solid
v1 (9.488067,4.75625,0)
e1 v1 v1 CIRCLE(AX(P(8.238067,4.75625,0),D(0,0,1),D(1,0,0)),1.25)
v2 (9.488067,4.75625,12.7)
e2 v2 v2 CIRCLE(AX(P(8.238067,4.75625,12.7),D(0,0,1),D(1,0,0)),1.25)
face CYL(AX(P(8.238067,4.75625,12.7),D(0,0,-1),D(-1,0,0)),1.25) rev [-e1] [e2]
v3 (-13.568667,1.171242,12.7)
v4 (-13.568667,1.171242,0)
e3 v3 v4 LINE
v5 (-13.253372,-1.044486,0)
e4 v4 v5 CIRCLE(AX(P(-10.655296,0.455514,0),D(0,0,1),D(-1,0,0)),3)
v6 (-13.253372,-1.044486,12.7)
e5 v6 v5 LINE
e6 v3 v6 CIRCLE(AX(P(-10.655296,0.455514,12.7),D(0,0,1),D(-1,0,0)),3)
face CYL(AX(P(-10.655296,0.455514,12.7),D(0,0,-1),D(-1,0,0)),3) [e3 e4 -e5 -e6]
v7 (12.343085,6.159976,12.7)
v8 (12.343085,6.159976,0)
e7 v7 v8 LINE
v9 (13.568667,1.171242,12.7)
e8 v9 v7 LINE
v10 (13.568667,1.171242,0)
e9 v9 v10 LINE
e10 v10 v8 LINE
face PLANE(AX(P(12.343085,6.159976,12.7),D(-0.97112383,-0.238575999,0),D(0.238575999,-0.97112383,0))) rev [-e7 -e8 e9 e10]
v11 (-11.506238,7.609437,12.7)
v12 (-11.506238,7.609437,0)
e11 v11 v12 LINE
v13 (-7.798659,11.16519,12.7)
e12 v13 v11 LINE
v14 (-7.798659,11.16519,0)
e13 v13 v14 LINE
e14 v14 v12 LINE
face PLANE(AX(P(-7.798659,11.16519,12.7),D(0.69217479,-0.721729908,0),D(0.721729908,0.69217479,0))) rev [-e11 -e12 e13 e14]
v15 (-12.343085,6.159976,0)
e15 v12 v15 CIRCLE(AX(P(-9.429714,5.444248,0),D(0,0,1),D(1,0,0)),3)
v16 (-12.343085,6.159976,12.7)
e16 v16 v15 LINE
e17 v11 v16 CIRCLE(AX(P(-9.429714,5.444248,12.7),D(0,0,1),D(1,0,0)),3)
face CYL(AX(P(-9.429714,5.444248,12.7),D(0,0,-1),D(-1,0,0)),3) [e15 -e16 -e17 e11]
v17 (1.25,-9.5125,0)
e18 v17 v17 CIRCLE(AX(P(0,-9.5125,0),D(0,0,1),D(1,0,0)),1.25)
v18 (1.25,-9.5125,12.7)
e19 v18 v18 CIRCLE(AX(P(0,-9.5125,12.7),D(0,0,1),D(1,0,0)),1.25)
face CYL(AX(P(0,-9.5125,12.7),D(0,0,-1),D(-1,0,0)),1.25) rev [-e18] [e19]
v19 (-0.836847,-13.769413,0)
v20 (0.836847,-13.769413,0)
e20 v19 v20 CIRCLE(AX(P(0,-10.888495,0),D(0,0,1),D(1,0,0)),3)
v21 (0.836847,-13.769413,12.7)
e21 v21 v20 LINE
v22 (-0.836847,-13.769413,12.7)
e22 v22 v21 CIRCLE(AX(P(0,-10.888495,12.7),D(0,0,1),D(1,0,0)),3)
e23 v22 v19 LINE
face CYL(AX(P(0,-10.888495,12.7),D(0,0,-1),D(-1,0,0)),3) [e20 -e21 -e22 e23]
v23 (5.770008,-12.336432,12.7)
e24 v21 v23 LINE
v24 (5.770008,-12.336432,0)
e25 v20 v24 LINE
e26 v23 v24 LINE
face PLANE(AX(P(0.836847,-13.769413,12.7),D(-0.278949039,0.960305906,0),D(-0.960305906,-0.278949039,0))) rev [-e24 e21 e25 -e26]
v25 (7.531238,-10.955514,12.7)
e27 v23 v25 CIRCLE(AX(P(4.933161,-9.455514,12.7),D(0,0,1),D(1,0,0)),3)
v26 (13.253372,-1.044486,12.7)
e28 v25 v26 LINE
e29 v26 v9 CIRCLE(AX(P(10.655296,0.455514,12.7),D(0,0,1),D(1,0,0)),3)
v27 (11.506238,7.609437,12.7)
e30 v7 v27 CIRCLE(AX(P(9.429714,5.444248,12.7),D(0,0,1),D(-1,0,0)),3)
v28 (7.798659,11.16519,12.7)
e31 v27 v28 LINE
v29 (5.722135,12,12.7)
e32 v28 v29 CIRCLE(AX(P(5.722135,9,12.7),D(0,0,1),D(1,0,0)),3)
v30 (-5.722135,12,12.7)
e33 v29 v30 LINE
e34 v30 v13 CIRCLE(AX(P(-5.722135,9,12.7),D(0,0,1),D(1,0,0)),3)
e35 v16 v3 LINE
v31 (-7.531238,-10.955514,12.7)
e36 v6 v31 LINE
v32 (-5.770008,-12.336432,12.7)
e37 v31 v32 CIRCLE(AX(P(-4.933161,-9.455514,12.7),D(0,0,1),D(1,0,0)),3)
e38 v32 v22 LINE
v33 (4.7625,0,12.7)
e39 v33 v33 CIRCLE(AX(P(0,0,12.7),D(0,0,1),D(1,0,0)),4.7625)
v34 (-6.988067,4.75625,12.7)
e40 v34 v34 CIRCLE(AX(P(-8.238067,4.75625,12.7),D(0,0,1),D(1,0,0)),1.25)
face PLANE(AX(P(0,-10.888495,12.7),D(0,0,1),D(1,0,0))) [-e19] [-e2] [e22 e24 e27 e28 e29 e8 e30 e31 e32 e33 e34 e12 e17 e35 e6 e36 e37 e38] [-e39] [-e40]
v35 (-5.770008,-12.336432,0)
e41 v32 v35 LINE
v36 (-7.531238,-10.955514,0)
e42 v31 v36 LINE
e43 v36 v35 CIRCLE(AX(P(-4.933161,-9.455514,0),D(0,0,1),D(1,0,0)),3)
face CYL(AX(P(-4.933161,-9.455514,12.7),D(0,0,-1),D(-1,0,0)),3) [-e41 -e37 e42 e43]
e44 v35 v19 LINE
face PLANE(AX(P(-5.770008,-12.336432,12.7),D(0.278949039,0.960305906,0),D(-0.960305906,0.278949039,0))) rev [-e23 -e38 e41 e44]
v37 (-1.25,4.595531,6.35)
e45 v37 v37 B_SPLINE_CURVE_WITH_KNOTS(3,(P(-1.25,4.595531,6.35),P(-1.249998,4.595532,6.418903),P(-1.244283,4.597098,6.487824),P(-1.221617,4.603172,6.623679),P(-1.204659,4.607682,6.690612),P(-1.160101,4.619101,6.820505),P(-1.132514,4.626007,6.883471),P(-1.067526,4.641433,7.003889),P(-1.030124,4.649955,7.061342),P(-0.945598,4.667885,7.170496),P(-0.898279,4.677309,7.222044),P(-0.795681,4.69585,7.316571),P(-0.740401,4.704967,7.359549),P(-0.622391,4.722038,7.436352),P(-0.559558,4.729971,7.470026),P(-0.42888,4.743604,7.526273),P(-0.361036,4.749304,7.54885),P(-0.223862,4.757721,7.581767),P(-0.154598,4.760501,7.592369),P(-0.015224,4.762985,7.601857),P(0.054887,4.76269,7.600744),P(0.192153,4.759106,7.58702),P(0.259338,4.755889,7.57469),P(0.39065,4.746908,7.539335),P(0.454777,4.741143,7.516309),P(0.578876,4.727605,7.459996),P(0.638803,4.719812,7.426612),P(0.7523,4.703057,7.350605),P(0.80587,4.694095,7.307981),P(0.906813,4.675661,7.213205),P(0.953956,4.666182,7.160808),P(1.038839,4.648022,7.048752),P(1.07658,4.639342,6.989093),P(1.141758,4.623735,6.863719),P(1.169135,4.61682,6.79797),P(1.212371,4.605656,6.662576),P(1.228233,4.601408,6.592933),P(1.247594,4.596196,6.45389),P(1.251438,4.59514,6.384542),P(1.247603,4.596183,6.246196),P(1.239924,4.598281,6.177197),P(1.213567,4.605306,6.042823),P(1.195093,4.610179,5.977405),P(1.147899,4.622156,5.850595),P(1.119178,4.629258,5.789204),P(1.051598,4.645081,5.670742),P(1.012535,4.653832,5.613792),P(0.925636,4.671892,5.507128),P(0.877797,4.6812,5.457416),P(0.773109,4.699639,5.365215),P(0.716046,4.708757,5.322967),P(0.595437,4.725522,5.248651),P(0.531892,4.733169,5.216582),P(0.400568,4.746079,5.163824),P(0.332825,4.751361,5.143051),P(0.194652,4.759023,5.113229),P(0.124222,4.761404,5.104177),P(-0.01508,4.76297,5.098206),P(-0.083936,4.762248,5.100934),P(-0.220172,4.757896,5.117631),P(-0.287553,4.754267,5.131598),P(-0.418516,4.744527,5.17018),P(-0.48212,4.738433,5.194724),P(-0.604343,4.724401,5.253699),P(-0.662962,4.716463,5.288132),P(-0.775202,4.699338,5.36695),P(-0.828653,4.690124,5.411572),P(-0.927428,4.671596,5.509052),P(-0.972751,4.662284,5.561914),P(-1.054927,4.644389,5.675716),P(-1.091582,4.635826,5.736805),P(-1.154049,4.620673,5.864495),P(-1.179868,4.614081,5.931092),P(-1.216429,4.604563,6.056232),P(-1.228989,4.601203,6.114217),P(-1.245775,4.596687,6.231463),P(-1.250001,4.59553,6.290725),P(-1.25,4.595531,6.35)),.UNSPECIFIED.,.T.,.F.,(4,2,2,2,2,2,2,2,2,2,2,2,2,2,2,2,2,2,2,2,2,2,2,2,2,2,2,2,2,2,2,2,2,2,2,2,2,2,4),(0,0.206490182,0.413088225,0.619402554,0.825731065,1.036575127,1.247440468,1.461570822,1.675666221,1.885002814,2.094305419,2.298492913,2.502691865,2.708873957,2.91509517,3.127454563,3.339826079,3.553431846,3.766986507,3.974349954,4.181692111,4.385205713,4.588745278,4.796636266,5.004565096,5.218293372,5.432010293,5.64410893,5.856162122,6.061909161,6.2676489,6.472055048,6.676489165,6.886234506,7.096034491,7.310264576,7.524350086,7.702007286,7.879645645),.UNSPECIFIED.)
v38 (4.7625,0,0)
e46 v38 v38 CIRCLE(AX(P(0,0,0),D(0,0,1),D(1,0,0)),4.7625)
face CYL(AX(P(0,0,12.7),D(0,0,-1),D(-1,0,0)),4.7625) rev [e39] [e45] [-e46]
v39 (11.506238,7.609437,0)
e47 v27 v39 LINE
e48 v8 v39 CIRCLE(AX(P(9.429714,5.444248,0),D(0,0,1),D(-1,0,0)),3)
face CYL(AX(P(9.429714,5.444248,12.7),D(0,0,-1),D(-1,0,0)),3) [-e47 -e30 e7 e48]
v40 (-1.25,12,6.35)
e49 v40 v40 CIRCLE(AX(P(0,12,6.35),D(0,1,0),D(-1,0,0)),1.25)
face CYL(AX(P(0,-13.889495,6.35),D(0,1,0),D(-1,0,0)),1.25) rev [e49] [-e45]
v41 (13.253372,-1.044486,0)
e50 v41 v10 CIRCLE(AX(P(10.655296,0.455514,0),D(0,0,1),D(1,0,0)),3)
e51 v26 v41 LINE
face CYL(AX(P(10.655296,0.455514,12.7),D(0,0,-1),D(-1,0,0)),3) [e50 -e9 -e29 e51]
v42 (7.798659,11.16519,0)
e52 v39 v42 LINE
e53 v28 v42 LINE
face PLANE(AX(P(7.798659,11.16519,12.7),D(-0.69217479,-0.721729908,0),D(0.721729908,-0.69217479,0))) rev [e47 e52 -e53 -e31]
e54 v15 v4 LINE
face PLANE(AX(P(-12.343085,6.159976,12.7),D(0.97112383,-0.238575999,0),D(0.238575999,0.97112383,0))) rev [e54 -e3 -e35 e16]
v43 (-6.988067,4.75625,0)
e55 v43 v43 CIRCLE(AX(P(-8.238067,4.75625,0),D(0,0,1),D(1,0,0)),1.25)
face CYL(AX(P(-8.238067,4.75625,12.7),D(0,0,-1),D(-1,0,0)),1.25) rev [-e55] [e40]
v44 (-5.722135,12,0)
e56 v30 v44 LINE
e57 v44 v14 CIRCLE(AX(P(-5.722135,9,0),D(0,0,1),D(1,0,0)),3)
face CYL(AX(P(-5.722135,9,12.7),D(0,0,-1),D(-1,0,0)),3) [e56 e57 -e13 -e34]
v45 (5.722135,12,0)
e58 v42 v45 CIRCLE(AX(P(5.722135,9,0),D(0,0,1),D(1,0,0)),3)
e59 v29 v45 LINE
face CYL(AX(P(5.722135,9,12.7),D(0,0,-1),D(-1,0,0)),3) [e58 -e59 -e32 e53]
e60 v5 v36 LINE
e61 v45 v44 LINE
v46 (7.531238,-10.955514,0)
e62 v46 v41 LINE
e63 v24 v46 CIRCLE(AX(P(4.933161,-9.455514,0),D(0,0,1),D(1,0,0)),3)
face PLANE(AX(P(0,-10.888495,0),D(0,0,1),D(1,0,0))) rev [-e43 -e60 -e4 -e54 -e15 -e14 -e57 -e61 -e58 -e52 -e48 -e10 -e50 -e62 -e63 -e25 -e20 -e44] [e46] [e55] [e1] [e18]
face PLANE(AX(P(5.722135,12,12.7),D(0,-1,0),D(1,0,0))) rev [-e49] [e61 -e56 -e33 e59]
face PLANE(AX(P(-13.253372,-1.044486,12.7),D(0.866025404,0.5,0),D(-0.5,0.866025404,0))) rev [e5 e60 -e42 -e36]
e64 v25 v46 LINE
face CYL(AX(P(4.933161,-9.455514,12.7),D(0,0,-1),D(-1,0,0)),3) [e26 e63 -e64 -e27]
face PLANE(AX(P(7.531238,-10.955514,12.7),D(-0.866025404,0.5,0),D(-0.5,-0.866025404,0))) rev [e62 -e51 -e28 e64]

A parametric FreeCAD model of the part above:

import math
import FreeCAD as App
import Part
import Sketcher

V = App.Vector
Q = App.Units.Quantity

doc = App.newDocument("Part")
body = doc.addObject("PartDesign::Body", "Body")

sketch1 = doc.addObject("Sketcher::SketchObject", "Sketch")
body.addObject(sketch1)
sketch1.AttachmentSupport = (doc.XY_Plane, [""])
sketch1.MapMode = "FlatFace"
sketch1.addGeometry([
    Part.LineSegment(V(-13.3, -1, 0), V(-7.5, -11, 0)),
    Part.ArcOfCircle(Part.Circle(V(-4.9, -9.5, 0), V(0, 0, 1), 3), math.radians(-150), math.radians(-106)),
    Part.LineSegment(V(-5.8, -12.3, 0), V(-0.8, -13.8, 0)),
    Part.ArcOfCircle(Part.Circle(V(0, -10.9, 0), V(0, 0, 1), 3), math.radians(-106), math.radians(-74)),
    Part.LineSegment(V(0.8, -13.8, 0), V(5.8, -12.3, 0)),
    Part.ArcOfCircle(Part.Circle(V(4.9, -9.5, 0), V(0, 0, 1), 3), math.radians(-74), math.radians(-30)),
    Part.LineSegment(V(7.5, -11, 0), V(13.3, -1, 0)),
    Part.ArcOfCircle(Part.Circle(V(10.7, 0.5, 0), V(0, 0, 1), 3), math.radians(-30), math.radians(14)),
    Part.LineSegment(V(13.6, 1.2, 0), V(12.3, 6.2, 0)),
    Part.ArcOfCircle(Part.Circle(V(9.4, 5.4, 0), V(0, 0, 1), 3), math.radians(14), math.radians(46)),
    Part.LineSegment(V(11.5, 7.6, 0), V(7.8, 11.2, 0)),
    Part.ArcOfCircle(Part.Circle(V(5.7, 9, 0), V(0, 0, 1), 3), math.radians(46), math.radians(90)),
    Part.LineSegment(V(5.7, 12, 0), V(-5.7, 12, 0)),
    Part.ArcOfCircle(Part.Circle(V(-5.7, 9, 0), V(0, 0, 1), 3), math.radians(90), math.radians(134)),
    Part.LineSegment(V(-7.8, 11.2, 0), V(-11.5, 7.6, 0)),
    Part.ArcOfCircle(Part.Circle(V(-9.4, 5.4, 0), V(0, 0, 1), 3), math.radians(134), math.radians(166)),
    Part.LineSegment(V(-12.3, 6.2, 0), V(-13.6, 1.2, 0)),
    Part.ArcOfCircle(Part.Circle(V(-10.7, 0.5, 0), V(0, 0, 1), 3), math.radians(166), math.radians(210)),
    Part.Circle(V(0, -9.5, 0), V(0, 0, 1), 1.2),
    Part.Circle(V(-8.2, 4.8, 0), V(0, 0, 1), 1.2),
    Part.Circle(V(0, 0, 0), V(0, 0, 1), 4.8),
    Part.Circle(V(8.2, 4.8, 0), V(0, 0, 1), 1.2),
], False)
sketch1.addConstraint([
    Sketcher.Constraint("Tangent", 0, 2, 1, 1),
    Sketcher.Constraint("Tangent", 1, 2, 2, 1),
    Sketcher.Constraint("Tangent", 2, 2, 3, 1),
    Sketcher.Constraint("Tangent", 3, 2, 4, 1),
    Sketcher.Constraint("Tangent", 4, 2, 5, 1),
    Sketcher.Constraint("Tangent", 5, 2, 6, 1),
    Sketcher.Constraint("Tangent", 6, 2, 7, 1),
    Sketcher.Constraint("Tangent", 7, 2, 8, 1),
    Sketcher.Constraint("Tangent", 8, 2, 9, 1),
    Sketcher.Constraint("Tangent", 9, 2, 10, 1),
    Sketcher.Constraint("Tangent", 10, 2, 11, 1),
    Sketcher.Constraint("Tangent", 11, 2, 12, 1),
    Sketcher.Constraint("Tangent", 12, 2, 13, 1),
    Sketcher.Constraint("Tangent", 13, 2, 14, 1),
    Sketcher.Constraint("Tangent", 14, 2, 15, 1),
    Sketcher.Constraint("Tangent", 15, 2, 16, 1),
    Sketcher.Constraint("Tangent", 16, 2, 17, 1),
    Sketcher.Constraint("Tangent", 17, 2, 0, 1),
    Sketcher.Constraint("Horizontal", 12),
    Sketcher.Constraint("Coincident", 20, 3, -1, 1),
    Sketcher.Constraint("Equal", 1, 3),
    Sketcher.Constraint("Equal", 3, 5),
    Sketcher.Constraint("Equal", 5, 7),
    Sketcher.Constraint("Equal", 7, 9),
    Sketcher.Constraint("Equal", 9, 11),
    Sketcher.Constraint("Equal", 11, 13),
    Sketcher.Constraint("Equal", 13, 15),
    Sketcher.Constraint("Equal", 15, 17),
    Sketcher.Constraint("Equal", 18, 19),
    Sketcher.Constraint("Equal", 19, 21),
    Sketcher.Constraint("Symmetric", 1, 3, 5, 3, -2),
    Sketcher.Constraint("Symmetric", 9, 3, 15, 3, -2),
    Sketcher.Constraint("Symmetric", 7, 3, 17, 3, -2),
    Sketcher.Constraint("Symmetric", 19, 3, 21, 3, -2),
    Sketcher.Constraint("PointOnObject", 3, 3, -2),
    Sketcher.Constraint("PointOnObject", 18, 3, -2),
    Sketcher.Constraint("Horizontal", 10, 2, 13, 2),
    Sketcher.Constraint("Equal", 4, 8),
    Sketcher.Constraint("Equal", 8, 10),
    Sketcher.Constraint("Radius", 1, 3.0),
    Sketcher.Constraint("Diameter", 18, 2.5),
    Sketcher.Constraint("Angle", 0, Q("-60 deg")),
    Sketcher.Constraint("Diameter", 20, 9.525),
    Sketcher.Constraint("DistanceY", -1, 1, 11, 3, 9.0),
    Sketcher.Constraint("DistanceX", 12, 2, 12, 1, 11.444269),
    Sketcher.Constraint("DistanceY", 18, 3, -1, 1, 9.5125),
    Sketcher.Constraint("DistanceX", 19, 3, 11, 3, 13.960201),
    Sketcher.Constraint("DistanceX", 0, 2, 5, 3, 12.464399),
    Sketcher.Constraint("DistanceY", 2, 2, 1, 3, 4.313899),
    Sketcher.Constraint("DistanceX", 21, 3, 7, 2, 5.330601),
    Sketcher.Constraint("Distance", 0, 11.444269),
    Sketcher.Constraint("DistanceY", -1, 1, 19, 3, 4.75625),
])
pad1 = doc.addObject("PartDesign::Pad", "Pad")
body.addObject(pad1)
pad1.Profile = sketch1
pad1.Length = 12.7

sketch2 = doc.addObject("Sketcher::SketchObject", "Sketch001")
body.addObject(sketch2)
sketch2.AttachmentSupport = (doc.XZ_Plane, [""])
sketch2.MapMode = "FlatFace"
sketch2.AttachmentOffset = App.Placement(V(0, 0, -12), App.Rotation())
sketch2.addGeometry(Part.Circle(V(0, 6.3, 0), V(0, 0, 1), 1.2), False)
sketch2.addConstraint([
    Sketcher.Constraint("PointOnObject", 0, 3, -2),
    Sketcher.Constraint("Diameter", 0, 2.5),
    Sketcher.Constraint("DistanceY", -1, 1, 0, 3, 6.35),
])
pocket1 = doc.addObject("PartDesign::Pocket", "Pocket")
body.addObject(pocket1)
pocket1.Profile = sketch2
pocket1.Type = "UpToFirst"
pocket1.Reversed = True

doc.recompute()
